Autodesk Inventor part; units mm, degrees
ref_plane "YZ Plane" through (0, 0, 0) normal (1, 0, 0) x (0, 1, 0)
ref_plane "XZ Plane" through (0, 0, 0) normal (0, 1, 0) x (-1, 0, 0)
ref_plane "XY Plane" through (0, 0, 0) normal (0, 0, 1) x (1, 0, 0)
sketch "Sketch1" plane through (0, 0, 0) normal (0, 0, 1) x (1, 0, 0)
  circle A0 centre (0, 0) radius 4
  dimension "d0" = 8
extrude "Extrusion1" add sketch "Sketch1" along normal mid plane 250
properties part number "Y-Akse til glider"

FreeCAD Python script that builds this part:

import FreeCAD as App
import Part
import Sketcher

V = App.Vector

doc = App.newDocument("Part")
body = doc.addObject("PartDesign::Body", "Body")

sketch1 = doc.addObject("Sketcher::SketchObject", "Sketch")
body.addObject(sketch1)
sketch1.AttachmentSupport = (doc.XY_Plane, [""])
sketch1.MapMode = "FlatFace"
sketch1.addGeometry(Part.Circle(V(0, 0, 0), V(0, 0, 1), 4), False)
sketch1.addConstraint([
    Sketcher.Constraint("Coincident", 0, 3, -1, 1),
    Sketcher.Constraint("Diameter", 0, 8.0),
])
pad1 = doc.addObject("PartDesign::Pad", "Pad")
body.addObject(pad1)
pad1.Profile = sketch1
pad1.Length = 250
pad1.Midplane = True

doc.recompute()
